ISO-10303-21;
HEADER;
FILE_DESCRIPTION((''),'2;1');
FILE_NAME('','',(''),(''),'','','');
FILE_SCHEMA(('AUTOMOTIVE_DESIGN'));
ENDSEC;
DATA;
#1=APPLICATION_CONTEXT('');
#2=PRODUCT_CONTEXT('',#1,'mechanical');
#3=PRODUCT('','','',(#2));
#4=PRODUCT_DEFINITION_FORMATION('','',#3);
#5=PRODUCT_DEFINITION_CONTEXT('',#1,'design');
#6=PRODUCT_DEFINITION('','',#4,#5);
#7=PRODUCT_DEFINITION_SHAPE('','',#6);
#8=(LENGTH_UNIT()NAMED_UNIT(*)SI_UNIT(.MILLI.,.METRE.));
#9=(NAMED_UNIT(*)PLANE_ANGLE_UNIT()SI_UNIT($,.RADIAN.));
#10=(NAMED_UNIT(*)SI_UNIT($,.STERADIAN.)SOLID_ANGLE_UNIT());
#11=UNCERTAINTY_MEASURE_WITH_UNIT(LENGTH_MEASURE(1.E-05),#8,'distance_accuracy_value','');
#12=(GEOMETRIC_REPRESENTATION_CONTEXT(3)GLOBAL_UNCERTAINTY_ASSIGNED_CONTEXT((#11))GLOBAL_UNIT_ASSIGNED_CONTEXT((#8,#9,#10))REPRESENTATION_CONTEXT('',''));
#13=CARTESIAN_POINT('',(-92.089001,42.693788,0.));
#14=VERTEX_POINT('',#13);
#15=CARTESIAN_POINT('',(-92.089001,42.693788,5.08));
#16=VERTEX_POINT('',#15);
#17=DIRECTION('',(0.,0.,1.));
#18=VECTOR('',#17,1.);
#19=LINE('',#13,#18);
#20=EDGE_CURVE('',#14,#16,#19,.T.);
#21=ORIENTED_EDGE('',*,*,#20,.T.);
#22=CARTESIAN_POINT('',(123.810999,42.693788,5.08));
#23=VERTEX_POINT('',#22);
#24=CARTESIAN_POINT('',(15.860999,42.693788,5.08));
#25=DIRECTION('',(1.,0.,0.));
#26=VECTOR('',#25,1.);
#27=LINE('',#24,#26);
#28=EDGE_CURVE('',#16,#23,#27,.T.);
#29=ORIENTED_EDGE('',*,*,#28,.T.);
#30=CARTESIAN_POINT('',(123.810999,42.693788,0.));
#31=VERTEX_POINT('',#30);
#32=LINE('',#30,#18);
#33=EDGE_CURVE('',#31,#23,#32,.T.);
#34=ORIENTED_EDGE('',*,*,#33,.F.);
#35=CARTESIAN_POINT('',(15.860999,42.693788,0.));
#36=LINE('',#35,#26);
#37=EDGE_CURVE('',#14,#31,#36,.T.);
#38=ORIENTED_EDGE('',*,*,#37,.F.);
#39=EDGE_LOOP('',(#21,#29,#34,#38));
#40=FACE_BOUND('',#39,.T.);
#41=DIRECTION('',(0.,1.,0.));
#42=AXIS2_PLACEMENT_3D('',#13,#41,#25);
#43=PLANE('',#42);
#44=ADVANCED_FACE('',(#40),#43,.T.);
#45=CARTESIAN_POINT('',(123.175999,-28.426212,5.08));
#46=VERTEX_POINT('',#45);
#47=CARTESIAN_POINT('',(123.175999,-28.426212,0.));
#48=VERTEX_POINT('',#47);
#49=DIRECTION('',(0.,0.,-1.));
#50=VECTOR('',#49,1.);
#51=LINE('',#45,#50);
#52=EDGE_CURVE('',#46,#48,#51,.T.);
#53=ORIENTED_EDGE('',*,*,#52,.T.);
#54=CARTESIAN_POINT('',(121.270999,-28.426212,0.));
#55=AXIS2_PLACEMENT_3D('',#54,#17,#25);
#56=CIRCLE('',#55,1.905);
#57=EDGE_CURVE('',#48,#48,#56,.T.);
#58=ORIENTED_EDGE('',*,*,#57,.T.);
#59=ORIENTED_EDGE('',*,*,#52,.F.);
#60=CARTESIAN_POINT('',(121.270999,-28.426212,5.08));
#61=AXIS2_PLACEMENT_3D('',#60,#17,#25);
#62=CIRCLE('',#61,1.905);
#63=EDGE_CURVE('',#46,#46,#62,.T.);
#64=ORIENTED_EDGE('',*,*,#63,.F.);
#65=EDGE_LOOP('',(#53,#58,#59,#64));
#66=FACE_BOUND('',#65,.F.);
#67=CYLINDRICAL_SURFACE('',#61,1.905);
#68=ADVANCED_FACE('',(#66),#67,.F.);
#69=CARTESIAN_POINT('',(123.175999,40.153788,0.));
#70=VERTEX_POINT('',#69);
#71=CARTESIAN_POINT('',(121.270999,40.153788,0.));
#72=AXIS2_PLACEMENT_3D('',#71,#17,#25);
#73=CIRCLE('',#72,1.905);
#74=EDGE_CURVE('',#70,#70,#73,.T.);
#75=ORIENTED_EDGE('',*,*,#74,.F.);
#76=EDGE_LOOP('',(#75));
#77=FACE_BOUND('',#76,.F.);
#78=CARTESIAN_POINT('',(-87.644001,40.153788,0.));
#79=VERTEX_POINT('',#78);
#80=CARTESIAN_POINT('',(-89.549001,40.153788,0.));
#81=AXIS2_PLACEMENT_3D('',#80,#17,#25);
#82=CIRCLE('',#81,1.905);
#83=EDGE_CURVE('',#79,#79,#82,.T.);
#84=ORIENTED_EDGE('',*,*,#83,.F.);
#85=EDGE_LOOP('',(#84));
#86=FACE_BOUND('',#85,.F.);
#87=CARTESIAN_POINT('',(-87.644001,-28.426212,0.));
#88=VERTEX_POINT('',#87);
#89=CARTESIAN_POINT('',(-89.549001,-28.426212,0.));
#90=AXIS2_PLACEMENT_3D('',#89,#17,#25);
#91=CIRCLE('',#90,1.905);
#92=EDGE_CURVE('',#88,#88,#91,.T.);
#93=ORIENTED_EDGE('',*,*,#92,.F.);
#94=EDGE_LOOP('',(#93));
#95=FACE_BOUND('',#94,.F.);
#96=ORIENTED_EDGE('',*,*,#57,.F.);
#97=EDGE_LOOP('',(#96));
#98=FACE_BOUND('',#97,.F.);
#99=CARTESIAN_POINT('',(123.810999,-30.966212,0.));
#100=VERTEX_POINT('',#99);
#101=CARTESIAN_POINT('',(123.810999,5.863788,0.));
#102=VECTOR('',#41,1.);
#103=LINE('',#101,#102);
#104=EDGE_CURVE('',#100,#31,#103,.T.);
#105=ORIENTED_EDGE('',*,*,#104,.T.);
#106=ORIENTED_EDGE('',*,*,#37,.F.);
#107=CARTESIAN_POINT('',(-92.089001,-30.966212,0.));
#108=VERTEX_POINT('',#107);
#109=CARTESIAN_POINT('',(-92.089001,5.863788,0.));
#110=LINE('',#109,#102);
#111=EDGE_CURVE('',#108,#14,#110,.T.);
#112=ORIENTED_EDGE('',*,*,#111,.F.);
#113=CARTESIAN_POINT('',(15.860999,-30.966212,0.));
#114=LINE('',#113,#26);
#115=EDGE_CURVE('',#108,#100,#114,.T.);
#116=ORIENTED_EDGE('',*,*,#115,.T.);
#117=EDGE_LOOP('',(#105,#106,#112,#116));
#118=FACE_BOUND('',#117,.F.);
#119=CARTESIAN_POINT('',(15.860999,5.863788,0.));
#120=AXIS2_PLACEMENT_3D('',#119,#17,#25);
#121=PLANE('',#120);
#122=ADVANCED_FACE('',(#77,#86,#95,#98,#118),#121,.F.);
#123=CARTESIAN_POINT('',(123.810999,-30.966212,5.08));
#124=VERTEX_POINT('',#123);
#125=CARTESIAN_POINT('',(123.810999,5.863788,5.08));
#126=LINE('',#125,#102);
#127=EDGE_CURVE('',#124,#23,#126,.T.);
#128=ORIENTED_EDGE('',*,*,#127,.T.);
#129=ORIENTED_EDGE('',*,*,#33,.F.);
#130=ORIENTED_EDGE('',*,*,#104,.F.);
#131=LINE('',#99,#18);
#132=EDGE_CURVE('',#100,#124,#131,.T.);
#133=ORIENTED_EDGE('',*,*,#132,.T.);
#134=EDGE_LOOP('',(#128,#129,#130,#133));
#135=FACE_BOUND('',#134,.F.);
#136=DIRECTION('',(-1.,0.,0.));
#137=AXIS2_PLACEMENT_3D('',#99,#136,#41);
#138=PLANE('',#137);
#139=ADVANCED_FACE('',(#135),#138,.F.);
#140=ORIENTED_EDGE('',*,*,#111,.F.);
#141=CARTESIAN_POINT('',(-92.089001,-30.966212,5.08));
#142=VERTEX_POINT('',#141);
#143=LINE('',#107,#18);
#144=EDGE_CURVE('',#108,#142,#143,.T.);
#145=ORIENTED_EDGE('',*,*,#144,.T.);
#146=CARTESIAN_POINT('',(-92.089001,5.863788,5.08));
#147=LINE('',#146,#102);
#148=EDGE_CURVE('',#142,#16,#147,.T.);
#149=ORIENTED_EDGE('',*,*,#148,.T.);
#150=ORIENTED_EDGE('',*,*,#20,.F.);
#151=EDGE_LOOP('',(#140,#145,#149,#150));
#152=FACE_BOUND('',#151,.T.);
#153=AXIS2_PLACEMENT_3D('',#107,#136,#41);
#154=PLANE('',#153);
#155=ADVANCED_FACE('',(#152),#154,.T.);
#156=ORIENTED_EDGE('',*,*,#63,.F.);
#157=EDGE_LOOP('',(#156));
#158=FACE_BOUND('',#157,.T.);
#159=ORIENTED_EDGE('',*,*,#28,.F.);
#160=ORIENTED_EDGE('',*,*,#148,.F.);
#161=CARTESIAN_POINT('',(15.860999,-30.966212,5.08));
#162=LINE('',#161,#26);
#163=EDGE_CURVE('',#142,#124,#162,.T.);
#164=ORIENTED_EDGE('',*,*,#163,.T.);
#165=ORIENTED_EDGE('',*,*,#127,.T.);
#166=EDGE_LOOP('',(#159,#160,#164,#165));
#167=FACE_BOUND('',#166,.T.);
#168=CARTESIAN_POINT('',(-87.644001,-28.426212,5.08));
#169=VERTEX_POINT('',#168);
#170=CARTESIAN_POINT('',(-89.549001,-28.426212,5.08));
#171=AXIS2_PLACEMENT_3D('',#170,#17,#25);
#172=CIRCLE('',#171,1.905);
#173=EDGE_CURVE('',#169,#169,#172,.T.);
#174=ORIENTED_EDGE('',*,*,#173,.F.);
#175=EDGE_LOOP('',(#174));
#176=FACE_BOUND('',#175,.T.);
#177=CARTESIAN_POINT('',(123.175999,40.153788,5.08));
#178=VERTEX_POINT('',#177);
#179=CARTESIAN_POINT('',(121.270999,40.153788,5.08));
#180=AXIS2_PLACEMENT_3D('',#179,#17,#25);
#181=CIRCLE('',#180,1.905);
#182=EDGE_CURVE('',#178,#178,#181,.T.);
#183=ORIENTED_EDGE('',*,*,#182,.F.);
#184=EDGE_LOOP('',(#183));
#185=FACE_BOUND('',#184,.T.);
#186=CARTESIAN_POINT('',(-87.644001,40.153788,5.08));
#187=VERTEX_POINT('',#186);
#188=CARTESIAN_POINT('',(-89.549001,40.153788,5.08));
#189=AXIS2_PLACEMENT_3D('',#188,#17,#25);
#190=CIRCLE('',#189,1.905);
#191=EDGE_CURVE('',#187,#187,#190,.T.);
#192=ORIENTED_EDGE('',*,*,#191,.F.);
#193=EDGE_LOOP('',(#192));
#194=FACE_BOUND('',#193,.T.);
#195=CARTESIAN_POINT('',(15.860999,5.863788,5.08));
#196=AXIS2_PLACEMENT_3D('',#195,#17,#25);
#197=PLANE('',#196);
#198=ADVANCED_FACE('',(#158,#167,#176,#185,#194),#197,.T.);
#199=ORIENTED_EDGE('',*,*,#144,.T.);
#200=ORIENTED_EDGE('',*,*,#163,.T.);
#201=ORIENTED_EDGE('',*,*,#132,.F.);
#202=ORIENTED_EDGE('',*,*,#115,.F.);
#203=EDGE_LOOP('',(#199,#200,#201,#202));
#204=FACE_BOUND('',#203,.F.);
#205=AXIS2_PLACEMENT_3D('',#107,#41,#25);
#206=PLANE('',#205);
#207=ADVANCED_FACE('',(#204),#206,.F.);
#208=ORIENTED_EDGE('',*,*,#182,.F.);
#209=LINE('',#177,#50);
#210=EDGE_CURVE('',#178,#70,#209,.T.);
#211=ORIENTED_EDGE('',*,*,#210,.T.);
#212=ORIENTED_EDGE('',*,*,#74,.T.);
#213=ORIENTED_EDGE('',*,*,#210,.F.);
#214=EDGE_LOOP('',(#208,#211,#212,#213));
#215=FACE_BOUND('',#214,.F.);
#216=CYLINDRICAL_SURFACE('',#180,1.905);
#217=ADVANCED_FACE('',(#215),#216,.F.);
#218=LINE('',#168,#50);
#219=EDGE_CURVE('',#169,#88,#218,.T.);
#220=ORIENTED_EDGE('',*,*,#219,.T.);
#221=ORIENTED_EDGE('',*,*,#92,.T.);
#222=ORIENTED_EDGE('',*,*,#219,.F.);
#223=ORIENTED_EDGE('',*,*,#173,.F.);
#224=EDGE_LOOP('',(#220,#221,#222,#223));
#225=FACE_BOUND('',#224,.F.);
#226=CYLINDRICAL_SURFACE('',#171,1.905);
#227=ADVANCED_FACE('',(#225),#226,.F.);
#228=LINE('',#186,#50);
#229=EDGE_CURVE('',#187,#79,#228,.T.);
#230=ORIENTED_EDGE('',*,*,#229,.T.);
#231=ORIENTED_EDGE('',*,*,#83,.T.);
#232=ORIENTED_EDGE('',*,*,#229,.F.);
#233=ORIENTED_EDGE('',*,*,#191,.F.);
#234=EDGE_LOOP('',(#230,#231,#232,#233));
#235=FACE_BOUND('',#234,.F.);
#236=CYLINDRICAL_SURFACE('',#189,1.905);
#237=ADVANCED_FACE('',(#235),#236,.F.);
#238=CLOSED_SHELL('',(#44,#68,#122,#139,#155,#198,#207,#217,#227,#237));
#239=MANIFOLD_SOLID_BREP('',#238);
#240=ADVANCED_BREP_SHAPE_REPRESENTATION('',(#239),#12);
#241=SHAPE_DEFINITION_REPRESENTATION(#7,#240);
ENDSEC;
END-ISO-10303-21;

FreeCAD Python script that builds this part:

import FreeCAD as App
import Part
import Sketcher

V = App.Vector
Q = App.Units.Quantity


def add_polygon(sketch, points):
    """Adds a closed chain of lines whose ends are joined by coincident constraints."""
    first, n = sketch.GeometryCount, len(points)
    for a, b in zip(points, points[1:] + points[:1]):
        sketch.addGeometry(Part.LineSegment(App.Vector(*a, 0), App.Vector(*b, 0)), False)
    for i in range(n):
        sketch.addConstraint(Sketcher.Constraint("Coincident", first + i, 2, first + (i + 1) % n, 1))

doc = App.newDocument("Part")
body = doc.addObject("PartDesign::Body", "Body")

# Sketch on XY plane
sketch1 = body.newObject("Sketcher::SketchObject", "Sketch")
sketch1.AttachmentSupport = (doc.getObject("XY_Plane"), [""])
sketch1.MapMode = "FlatFace"
add_polygon(sketch1, [(-92.089001, 42.693788), (-92.089001, -30.966212), (123.810999, -30.966212), (123.810999, 42.693788)])  # lines 0-3
sketch1.addConstraint([
    Sketcher.Constraint("Vertical", 0),
    Sketcher.Constraint("Horizontal", 1),
    Sketcher.Constraint("Vertical", 2),
    Sketcher.Constraint("Horizontal", 3),
    Sketcher.Constraint("DistanceX", 1, 1, 1, 2, Q("8.5 in")),
    Sketcher.Constraint("DistanceY", 0, 2, 0, 1, Q("2.9 in")),
    Sketcher.Constraint("DistanceX", 0, 2, -1, 1, Q("92.089001 mm")),
    Sketcher.Constraint("DistanceY", 0, 2, -1, 1, Q("30.966212 mm")),
])
pad1 = body.newObject("PartDesign::Pad", "Pad")
pad1.Profile = sketch1
pad1.Length = Q("0.2 in")

# Sketch on XY plane
sketch2 = body.newObject("Sketcher::SketchObject", "Sketch001")
sketch2.AttachmentSupport = (doc.getObject("XY_Plane"), [""])
sketch2.MapMode = "FlatFace"
sketch2.AttachmentOffset = App.Placement(V(0, 0, 0.2 * 25.4), App.Rotation())
sketch2.addGeometry([
    Part.Circle(V(-89.549001, 40.153788, 0), V(0, 0, 1), 1.905),
    Part.Circle(V(121.270999, 40.153788, 0), V(0, 0, 1), 1.905),
    Part.Circle(V(121.270999, -28.426212, 0), V(0, 0, 1), 1.905),
    Part.Circle(V(-89.549001, -28.426212, 0), V(0, 0, 1), 1.905),
], False)
sketch2.addConstraint([
    Sketcher.Constraint("Equal", 0, 1),
    Sketcher.Constraint("Equal", 1, 2),
    Sketcher.Constraint("Equal", 2, 3),
    Sketcher.Constraint("Horizontal", 0, 3, 1, 3),
    Sketcher.Constraint("Horizontal", 2, 3, 3, 3),
    Sketcher.Constraint("Vertical", 1, 3, 2, 3),
    Sketcher.Constraint("Vertical", 0, 3, 3, 3),
    Sketcher.Constraint("Diameter", 0, Q("0.15 in")),
    Sketcher.Constraint("DistanceX", 0, 3, 1, 3, Q("8.3 in")),
    Sketcher.Constraint("DistanceY", 2, 3, 1, 3, Q("2.7 in")),
    Sketcher.Constraint("DistanceX", 0, 3, -1, 1, Q("89.549001 mm")),
    Sketcher.Constraint("DistanceY", 2, 3, -1, 1, Q("28.426212 mm")),
])
pocket1 = body.newObject("PartDesign::Pocket", "Pocket")
pocket1.Profile = sketch2
pocket1.Type = "ThroughAll"

doc.recompute()
